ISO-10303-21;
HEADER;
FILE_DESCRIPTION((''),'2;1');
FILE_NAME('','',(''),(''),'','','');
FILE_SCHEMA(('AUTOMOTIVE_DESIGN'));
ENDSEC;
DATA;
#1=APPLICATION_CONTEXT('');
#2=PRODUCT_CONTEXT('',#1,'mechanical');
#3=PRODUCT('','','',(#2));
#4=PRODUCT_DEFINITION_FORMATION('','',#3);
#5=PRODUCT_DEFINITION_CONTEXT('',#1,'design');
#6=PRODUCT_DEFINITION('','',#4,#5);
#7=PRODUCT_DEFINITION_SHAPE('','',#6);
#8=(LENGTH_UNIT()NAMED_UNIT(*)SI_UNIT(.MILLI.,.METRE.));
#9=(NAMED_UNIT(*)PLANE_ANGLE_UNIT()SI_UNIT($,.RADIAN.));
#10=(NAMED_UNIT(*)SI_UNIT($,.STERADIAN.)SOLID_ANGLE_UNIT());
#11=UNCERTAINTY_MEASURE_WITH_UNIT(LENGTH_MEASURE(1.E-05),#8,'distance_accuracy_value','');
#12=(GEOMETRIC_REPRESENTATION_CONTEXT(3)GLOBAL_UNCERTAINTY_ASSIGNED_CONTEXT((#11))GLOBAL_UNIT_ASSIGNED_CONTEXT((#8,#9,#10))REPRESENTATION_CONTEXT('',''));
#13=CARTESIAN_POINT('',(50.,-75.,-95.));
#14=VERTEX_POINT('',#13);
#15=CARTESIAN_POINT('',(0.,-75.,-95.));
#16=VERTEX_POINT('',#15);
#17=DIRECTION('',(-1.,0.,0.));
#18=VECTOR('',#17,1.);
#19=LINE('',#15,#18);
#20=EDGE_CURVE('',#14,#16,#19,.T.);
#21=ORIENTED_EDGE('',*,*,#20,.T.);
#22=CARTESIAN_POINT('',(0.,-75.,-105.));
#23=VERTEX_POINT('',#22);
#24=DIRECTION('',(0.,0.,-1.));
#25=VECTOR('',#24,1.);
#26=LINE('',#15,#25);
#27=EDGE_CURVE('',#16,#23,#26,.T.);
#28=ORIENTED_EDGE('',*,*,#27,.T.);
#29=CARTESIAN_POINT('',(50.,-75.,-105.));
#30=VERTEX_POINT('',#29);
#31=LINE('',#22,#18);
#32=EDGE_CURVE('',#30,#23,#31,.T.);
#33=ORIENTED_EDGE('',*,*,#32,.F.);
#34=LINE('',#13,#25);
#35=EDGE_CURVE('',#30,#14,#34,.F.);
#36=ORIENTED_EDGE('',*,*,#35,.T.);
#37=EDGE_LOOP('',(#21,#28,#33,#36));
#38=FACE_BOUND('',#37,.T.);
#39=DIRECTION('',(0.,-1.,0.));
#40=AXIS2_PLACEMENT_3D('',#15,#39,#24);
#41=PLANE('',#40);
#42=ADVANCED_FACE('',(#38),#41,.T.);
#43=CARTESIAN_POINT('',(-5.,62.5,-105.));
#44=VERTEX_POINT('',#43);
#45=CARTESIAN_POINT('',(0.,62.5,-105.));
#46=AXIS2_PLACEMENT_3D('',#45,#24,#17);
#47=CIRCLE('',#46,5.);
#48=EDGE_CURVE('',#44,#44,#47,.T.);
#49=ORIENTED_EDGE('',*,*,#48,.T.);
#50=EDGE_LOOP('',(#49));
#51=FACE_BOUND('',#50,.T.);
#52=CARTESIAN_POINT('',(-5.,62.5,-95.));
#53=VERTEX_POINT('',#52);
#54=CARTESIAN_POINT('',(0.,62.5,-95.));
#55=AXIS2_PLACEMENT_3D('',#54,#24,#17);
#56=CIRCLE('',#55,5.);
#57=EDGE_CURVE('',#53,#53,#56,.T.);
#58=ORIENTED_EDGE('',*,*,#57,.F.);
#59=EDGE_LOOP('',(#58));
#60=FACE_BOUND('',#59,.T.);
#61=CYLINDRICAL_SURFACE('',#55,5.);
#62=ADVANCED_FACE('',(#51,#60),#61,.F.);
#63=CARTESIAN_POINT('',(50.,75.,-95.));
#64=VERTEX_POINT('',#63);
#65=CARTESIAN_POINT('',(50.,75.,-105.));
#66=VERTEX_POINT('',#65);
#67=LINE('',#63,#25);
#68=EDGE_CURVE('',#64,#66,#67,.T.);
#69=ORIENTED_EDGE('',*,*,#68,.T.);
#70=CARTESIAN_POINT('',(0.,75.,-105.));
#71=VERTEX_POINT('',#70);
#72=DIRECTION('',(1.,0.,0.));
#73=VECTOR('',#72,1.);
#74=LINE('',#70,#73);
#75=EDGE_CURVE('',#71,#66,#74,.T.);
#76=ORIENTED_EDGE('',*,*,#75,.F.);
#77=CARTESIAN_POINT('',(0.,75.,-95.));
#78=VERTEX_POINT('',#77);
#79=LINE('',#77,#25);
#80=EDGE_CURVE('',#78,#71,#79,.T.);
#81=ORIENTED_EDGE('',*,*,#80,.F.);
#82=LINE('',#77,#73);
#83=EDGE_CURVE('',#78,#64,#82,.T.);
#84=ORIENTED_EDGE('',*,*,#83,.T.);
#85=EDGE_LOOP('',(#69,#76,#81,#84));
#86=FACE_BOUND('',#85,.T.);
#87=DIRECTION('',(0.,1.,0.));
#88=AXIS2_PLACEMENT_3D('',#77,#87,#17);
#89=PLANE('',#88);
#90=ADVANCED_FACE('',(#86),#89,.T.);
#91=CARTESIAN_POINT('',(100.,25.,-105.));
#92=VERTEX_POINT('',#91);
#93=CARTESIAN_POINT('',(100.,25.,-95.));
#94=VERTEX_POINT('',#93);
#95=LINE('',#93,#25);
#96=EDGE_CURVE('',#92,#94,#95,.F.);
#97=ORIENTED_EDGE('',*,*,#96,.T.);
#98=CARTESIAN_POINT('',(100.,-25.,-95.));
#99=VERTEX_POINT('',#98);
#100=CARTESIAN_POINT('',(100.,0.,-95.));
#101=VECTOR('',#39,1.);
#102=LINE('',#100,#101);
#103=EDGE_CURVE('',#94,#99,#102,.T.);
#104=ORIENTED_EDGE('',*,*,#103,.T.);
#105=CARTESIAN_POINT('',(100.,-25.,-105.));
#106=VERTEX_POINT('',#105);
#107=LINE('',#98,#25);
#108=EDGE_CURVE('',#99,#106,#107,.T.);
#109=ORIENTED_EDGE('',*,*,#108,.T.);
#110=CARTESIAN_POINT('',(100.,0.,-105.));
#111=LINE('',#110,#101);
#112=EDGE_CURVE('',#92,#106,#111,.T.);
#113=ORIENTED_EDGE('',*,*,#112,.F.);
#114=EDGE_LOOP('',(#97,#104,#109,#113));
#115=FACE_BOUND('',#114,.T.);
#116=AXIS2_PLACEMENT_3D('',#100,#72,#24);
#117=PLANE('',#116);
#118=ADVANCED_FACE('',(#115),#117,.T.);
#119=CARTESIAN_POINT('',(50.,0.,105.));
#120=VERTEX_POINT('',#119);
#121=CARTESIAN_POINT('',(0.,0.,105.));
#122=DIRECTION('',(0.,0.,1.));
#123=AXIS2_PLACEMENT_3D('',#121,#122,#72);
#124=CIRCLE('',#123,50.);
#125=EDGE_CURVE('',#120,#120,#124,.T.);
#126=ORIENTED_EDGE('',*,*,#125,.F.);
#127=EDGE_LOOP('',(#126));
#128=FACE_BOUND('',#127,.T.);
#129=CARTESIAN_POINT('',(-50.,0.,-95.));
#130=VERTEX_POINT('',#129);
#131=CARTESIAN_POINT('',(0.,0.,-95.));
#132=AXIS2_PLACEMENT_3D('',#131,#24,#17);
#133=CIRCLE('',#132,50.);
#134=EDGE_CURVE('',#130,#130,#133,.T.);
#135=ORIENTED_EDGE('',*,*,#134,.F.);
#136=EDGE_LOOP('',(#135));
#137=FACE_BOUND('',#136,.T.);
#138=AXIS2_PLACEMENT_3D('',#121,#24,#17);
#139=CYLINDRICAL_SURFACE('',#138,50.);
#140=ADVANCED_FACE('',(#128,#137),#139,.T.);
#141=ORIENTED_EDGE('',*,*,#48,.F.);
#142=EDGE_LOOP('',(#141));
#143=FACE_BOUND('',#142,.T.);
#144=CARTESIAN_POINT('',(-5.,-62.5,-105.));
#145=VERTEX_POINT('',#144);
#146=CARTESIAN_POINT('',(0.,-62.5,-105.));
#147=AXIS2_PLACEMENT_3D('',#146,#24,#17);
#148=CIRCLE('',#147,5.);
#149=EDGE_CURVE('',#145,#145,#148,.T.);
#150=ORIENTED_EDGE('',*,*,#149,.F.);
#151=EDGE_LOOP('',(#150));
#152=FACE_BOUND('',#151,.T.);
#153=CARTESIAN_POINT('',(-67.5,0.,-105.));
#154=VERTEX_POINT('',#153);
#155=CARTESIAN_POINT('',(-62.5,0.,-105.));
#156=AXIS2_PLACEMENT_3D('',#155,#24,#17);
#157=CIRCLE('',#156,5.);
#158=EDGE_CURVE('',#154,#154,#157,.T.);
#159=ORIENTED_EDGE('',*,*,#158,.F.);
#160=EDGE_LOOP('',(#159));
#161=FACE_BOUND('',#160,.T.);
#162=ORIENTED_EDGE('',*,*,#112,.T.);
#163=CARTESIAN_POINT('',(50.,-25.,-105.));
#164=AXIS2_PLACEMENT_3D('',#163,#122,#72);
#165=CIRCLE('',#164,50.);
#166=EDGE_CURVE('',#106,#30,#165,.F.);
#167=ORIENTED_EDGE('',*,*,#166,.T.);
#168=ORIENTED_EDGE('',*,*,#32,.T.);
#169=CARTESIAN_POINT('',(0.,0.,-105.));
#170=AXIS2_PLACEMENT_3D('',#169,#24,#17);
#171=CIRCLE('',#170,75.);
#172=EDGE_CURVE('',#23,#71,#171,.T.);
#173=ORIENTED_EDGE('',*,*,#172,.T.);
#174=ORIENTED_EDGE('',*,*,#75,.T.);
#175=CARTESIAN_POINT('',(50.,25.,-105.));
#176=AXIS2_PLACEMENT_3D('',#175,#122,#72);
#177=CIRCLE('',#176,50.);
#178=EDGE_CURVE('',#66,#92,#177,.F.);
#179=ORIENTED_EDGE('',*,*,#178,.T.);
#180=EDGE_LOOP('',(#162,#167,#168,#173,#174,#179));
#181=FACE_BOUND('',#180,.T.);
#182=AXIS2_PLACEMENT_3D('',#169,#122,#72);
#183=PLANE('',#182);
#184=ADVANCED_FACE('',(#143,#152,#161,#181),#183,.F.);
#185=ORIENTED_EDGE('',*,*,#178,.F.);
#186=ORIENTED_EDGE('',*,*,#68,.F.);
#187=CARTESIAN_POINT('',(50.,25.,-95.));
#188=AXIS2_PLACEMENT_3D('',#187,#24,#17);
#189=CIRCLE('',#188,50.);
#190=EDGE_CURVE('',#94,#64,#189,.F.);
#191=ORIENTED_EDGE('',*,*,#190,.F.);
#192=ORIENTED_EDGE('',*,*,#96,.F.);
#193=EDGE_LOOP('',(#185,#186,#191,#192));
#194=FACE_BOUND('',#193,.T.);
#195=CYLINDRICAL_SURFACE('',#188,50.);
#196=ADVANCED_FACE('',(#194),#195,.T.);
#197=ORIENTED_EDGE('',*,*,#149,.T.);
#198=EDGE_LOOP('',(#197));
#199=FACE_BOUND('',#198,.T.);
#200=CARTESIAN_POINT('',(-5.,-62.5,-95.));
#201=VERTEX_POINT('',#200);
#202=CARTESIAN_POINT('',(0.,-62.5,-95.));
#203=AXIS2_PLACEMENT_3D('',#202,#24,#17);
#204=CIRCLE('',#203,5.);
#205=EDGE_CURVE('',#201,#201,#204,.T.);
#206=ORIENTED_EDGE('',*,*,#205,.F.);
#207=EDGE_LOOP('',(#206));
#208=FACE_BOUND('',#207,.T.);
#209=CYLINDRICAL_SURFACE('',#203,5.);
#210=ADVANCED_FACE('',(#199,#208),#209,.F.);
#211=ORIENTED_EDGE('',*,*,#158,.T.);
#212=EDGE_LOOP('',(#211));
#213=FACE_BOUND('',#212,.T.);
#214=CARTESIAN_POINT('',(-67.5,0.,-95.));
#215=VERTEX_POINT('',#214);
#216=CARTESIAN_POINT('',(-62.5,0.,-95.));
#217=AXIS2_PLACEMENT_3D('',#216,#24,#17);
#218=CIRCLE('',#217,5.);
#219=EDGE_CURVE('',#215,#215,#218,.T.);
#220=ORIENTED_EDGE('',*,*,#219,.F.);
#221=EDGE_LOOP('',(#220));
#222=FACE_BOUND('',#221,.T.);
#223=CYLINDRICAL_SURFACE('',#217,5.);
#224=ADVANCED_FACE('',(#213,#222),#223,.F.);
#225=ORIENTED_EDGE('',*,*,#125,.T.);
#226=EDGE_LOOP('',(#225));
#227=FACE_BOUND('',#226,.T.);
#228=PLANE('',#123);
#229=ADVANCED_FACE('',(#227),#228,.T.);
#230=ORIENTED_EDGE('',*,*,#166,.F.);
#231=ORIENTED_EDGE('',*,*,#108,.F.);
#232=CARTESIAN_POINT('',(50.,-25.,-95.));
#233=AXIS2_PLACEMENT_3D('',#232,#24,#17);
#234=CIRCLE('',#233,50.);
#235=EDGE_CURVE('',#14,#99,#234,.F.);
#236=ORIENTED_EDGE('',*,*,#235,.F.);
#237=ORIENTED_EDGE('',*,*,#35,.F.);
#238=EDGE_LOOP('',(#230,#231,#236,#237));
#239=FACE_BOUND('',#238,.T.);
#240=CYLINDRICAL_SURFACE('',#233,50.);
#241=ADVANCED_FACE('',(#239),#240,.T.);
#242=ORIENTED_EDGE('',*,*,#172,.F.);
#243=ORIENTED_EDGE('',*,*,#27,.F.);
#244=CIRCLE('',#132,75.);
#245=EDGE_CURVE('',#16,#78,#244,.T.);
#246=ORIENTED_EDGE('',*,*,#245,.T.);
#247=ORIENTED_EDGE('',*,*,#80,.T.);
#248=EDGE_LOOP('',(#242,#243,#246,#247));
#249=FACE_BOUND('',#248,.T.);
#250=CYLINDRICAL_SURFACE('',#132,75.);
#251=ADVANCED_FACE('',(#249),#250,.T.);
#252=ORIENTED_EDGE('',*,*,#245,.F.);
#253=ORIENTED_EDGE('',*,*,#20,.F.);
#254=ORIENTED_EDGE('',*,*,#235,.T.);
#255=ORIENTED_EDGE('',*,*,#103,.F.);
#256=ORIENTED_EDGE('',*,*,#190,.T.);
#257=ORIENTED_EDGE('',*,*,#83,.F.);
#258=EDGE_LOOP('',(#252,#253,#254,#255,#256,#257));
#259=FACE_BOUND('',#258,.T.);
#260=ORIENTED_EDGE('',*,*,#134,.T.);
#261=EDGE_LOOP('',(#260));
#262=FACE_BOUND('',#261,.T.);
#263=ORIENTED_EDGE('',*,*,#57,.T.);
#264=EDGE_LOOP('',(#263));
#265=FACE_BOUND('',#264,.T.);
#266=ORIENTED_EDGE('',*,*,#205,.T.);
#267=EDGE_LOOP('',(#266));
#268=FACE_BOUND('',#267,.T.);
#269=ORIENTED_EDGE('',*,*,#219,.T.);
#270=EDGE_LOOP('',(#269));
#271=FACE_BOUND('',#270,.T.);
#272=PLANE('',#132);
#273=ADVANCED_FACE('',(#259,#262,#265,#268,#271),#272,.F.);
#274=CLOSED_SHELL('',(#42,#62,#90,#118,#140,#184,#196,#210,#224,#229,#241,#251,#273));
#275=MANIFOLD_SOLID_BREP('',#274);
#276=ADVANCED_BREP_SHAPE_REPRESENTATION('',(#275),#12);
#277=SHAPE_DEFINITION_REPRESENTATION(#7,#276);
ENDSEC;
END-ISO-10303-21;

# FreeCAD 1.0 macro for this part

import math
import FreeCAD as App
import Part
import Sketcher
from FreeCAD import Vector
Q = App.Units.Quantity


def edges_at(feature, points):
    """Names of the edges that pass closest to the given points."""
    edges = feature.Shape.Edges
    near = lambda p: min(range(len(edges)), key=lambda i: edges[i].distToShape(Part.Vertex(*p))[0])
    return sorted({f"Edge{near(p) + 1}" for p in points})

doc = App.newDocument("Part")
body = doc.addObject("PartDesign::Body", "Body")

sketch1 = doc.addObject("Sketcher::SketchObject", "Sketch")
body.addObject(sketch1)
sketch1.AttachmentSupport = (doc.XY_Plane, [""])
sketch1.MapMode = "FlatFace"
sketch1.addGeometry(Part.Circle(Vector(0, 0, 0), Vector(0, 0, 1), 50), False)
sketch1.addConstraint([
    Sketcher.Constraint("Coincident", 0, 3, -1, 1),
    Sketcher.Constraint("Diameter", 0, Q("100 mm")),
])
pad1 = doc.addObject("PartDesign::Pad", "Pad")
body.addObject(pad1)
pad1.Profile = sketch1
pad1.Length = 210
pad1.Midplane = True

sketch2 = doc.addObject("Sketcher::SketchObject", "Sketch001")
body.addObject(sketch2)
sketch2.AttachmentSupport = (doc.XY_Plane, [""])
sketch2.MapMode = "FlatFace"
sketch2.AttachmentOffset = App.Placement(Vector(0, 0, -95), App.Rotation())
sketch2.addGeometry([
    Part.ArcOfCircle(Part.Circle(Vector(0, 0, 0), Vector(0, 0, 1), 75), math.radians(90), math.radians(270)),
    Part.LineSegment(Vector(0, 75, 0), Vector(100, 75, 0)),
    Part.LineSegment(Vector(100, 75, 0), Vector(100, -75, 0)),
    Part.LineSegment(Vector(100, -75, 0), Vector(0, -75, 0)),
], False)
sketch2.addConstraint([
    Sketcher.Constraint("Tangent", 0, 1, 1, 1),
    Sketcher.Constraint("Coincident", 1, 2, 2, 1),
    Sketcher.Constraint("Coincident", 2, 2, 3, 1),
    Sketcher.Constraint("Tangent", 3, 2, 0, 2),
    Sketcher.Constraint("Horizontal", 1),
    Sketcher.Constraint("Vertical", 2),
    Sketcher.Constraint("Horizontal", 3),
    Sketcher.Constraint("Coincident", 0, 3, -1, 1),
    Sketcher.Constraint("Radius", 0, Q("75 mm")),
    Sketcher.Constraint("DistanceX", 1, 1, 1, 2, Q("100 mm")),
])
pad2 = doc.addObject("PartDesign::Pad", "Pad001")
body.addObject(pad2)
pad2.Profile = sketch2
pad2.Length = 10
pad2.Reversed = True

sketch3 = doc.addObject("Sketcher::SketchObject", "Sketch002")
body.addObject(sketch3)
sketch3.AttachmentSupport = (doc.XY_Plane, [""])
sketch3.MapMode = "FlatFace"
sketch3.AttachmentOffset = App.Placement(Vector(0, 0, -105), App.Rotation())
sketch3.addGeometry([
    Part.Circle(Vector(0, 62, 0), Vector(0, 0, 1), 5),
    Part.Circle(Vector(-62, 0, 0), Vector(0, 0, 1), 5),
    Part.Circle(Vector(0, -62, 0), Vector(0, 0, 1), 5),
], False)
sketch3.addConstraint([
    Sketcher.Constraint("Equal", 0, 1),
    Sketcher.Constraint("Equal", 1, 2),
    Sketcher.Constraint("Symmetric", 0, 3, 2, 3, -1, 1),
    Sketcher.Constraint("PointOnObject", 0, 3, -2),
    Sketcher.Constraint("PointOnObject", 1, 3, -1),
    Sketcher.Constraint("Diameter", 0, Q("10 mm")),
    Sketcher.Constraint("DistanceY", 2, 3, 0, 3, Q("125 mm")),
    Sketcher.Constraint("DistanceX", 1, 3, -1, 1, Q("62.5 mm")),
])
pocket1 = doc.addObject("PartDesign::Pocket", "Pocket")
body.addObject(pocket1)
pocket1.Profile = sketch3
pocket1.Length = 10
pocket1.Reversed = True
doc.recompute()

fillet = doc.addObject("PartDesign::Fillet", "Fillet")
body.addObject(fillet)
fillet.Base = (pocket1, edges_at(pocket1, [(100, -75, -100), (100, 75, -100)]))
fillet.Radius = 50

doc.recompute()
